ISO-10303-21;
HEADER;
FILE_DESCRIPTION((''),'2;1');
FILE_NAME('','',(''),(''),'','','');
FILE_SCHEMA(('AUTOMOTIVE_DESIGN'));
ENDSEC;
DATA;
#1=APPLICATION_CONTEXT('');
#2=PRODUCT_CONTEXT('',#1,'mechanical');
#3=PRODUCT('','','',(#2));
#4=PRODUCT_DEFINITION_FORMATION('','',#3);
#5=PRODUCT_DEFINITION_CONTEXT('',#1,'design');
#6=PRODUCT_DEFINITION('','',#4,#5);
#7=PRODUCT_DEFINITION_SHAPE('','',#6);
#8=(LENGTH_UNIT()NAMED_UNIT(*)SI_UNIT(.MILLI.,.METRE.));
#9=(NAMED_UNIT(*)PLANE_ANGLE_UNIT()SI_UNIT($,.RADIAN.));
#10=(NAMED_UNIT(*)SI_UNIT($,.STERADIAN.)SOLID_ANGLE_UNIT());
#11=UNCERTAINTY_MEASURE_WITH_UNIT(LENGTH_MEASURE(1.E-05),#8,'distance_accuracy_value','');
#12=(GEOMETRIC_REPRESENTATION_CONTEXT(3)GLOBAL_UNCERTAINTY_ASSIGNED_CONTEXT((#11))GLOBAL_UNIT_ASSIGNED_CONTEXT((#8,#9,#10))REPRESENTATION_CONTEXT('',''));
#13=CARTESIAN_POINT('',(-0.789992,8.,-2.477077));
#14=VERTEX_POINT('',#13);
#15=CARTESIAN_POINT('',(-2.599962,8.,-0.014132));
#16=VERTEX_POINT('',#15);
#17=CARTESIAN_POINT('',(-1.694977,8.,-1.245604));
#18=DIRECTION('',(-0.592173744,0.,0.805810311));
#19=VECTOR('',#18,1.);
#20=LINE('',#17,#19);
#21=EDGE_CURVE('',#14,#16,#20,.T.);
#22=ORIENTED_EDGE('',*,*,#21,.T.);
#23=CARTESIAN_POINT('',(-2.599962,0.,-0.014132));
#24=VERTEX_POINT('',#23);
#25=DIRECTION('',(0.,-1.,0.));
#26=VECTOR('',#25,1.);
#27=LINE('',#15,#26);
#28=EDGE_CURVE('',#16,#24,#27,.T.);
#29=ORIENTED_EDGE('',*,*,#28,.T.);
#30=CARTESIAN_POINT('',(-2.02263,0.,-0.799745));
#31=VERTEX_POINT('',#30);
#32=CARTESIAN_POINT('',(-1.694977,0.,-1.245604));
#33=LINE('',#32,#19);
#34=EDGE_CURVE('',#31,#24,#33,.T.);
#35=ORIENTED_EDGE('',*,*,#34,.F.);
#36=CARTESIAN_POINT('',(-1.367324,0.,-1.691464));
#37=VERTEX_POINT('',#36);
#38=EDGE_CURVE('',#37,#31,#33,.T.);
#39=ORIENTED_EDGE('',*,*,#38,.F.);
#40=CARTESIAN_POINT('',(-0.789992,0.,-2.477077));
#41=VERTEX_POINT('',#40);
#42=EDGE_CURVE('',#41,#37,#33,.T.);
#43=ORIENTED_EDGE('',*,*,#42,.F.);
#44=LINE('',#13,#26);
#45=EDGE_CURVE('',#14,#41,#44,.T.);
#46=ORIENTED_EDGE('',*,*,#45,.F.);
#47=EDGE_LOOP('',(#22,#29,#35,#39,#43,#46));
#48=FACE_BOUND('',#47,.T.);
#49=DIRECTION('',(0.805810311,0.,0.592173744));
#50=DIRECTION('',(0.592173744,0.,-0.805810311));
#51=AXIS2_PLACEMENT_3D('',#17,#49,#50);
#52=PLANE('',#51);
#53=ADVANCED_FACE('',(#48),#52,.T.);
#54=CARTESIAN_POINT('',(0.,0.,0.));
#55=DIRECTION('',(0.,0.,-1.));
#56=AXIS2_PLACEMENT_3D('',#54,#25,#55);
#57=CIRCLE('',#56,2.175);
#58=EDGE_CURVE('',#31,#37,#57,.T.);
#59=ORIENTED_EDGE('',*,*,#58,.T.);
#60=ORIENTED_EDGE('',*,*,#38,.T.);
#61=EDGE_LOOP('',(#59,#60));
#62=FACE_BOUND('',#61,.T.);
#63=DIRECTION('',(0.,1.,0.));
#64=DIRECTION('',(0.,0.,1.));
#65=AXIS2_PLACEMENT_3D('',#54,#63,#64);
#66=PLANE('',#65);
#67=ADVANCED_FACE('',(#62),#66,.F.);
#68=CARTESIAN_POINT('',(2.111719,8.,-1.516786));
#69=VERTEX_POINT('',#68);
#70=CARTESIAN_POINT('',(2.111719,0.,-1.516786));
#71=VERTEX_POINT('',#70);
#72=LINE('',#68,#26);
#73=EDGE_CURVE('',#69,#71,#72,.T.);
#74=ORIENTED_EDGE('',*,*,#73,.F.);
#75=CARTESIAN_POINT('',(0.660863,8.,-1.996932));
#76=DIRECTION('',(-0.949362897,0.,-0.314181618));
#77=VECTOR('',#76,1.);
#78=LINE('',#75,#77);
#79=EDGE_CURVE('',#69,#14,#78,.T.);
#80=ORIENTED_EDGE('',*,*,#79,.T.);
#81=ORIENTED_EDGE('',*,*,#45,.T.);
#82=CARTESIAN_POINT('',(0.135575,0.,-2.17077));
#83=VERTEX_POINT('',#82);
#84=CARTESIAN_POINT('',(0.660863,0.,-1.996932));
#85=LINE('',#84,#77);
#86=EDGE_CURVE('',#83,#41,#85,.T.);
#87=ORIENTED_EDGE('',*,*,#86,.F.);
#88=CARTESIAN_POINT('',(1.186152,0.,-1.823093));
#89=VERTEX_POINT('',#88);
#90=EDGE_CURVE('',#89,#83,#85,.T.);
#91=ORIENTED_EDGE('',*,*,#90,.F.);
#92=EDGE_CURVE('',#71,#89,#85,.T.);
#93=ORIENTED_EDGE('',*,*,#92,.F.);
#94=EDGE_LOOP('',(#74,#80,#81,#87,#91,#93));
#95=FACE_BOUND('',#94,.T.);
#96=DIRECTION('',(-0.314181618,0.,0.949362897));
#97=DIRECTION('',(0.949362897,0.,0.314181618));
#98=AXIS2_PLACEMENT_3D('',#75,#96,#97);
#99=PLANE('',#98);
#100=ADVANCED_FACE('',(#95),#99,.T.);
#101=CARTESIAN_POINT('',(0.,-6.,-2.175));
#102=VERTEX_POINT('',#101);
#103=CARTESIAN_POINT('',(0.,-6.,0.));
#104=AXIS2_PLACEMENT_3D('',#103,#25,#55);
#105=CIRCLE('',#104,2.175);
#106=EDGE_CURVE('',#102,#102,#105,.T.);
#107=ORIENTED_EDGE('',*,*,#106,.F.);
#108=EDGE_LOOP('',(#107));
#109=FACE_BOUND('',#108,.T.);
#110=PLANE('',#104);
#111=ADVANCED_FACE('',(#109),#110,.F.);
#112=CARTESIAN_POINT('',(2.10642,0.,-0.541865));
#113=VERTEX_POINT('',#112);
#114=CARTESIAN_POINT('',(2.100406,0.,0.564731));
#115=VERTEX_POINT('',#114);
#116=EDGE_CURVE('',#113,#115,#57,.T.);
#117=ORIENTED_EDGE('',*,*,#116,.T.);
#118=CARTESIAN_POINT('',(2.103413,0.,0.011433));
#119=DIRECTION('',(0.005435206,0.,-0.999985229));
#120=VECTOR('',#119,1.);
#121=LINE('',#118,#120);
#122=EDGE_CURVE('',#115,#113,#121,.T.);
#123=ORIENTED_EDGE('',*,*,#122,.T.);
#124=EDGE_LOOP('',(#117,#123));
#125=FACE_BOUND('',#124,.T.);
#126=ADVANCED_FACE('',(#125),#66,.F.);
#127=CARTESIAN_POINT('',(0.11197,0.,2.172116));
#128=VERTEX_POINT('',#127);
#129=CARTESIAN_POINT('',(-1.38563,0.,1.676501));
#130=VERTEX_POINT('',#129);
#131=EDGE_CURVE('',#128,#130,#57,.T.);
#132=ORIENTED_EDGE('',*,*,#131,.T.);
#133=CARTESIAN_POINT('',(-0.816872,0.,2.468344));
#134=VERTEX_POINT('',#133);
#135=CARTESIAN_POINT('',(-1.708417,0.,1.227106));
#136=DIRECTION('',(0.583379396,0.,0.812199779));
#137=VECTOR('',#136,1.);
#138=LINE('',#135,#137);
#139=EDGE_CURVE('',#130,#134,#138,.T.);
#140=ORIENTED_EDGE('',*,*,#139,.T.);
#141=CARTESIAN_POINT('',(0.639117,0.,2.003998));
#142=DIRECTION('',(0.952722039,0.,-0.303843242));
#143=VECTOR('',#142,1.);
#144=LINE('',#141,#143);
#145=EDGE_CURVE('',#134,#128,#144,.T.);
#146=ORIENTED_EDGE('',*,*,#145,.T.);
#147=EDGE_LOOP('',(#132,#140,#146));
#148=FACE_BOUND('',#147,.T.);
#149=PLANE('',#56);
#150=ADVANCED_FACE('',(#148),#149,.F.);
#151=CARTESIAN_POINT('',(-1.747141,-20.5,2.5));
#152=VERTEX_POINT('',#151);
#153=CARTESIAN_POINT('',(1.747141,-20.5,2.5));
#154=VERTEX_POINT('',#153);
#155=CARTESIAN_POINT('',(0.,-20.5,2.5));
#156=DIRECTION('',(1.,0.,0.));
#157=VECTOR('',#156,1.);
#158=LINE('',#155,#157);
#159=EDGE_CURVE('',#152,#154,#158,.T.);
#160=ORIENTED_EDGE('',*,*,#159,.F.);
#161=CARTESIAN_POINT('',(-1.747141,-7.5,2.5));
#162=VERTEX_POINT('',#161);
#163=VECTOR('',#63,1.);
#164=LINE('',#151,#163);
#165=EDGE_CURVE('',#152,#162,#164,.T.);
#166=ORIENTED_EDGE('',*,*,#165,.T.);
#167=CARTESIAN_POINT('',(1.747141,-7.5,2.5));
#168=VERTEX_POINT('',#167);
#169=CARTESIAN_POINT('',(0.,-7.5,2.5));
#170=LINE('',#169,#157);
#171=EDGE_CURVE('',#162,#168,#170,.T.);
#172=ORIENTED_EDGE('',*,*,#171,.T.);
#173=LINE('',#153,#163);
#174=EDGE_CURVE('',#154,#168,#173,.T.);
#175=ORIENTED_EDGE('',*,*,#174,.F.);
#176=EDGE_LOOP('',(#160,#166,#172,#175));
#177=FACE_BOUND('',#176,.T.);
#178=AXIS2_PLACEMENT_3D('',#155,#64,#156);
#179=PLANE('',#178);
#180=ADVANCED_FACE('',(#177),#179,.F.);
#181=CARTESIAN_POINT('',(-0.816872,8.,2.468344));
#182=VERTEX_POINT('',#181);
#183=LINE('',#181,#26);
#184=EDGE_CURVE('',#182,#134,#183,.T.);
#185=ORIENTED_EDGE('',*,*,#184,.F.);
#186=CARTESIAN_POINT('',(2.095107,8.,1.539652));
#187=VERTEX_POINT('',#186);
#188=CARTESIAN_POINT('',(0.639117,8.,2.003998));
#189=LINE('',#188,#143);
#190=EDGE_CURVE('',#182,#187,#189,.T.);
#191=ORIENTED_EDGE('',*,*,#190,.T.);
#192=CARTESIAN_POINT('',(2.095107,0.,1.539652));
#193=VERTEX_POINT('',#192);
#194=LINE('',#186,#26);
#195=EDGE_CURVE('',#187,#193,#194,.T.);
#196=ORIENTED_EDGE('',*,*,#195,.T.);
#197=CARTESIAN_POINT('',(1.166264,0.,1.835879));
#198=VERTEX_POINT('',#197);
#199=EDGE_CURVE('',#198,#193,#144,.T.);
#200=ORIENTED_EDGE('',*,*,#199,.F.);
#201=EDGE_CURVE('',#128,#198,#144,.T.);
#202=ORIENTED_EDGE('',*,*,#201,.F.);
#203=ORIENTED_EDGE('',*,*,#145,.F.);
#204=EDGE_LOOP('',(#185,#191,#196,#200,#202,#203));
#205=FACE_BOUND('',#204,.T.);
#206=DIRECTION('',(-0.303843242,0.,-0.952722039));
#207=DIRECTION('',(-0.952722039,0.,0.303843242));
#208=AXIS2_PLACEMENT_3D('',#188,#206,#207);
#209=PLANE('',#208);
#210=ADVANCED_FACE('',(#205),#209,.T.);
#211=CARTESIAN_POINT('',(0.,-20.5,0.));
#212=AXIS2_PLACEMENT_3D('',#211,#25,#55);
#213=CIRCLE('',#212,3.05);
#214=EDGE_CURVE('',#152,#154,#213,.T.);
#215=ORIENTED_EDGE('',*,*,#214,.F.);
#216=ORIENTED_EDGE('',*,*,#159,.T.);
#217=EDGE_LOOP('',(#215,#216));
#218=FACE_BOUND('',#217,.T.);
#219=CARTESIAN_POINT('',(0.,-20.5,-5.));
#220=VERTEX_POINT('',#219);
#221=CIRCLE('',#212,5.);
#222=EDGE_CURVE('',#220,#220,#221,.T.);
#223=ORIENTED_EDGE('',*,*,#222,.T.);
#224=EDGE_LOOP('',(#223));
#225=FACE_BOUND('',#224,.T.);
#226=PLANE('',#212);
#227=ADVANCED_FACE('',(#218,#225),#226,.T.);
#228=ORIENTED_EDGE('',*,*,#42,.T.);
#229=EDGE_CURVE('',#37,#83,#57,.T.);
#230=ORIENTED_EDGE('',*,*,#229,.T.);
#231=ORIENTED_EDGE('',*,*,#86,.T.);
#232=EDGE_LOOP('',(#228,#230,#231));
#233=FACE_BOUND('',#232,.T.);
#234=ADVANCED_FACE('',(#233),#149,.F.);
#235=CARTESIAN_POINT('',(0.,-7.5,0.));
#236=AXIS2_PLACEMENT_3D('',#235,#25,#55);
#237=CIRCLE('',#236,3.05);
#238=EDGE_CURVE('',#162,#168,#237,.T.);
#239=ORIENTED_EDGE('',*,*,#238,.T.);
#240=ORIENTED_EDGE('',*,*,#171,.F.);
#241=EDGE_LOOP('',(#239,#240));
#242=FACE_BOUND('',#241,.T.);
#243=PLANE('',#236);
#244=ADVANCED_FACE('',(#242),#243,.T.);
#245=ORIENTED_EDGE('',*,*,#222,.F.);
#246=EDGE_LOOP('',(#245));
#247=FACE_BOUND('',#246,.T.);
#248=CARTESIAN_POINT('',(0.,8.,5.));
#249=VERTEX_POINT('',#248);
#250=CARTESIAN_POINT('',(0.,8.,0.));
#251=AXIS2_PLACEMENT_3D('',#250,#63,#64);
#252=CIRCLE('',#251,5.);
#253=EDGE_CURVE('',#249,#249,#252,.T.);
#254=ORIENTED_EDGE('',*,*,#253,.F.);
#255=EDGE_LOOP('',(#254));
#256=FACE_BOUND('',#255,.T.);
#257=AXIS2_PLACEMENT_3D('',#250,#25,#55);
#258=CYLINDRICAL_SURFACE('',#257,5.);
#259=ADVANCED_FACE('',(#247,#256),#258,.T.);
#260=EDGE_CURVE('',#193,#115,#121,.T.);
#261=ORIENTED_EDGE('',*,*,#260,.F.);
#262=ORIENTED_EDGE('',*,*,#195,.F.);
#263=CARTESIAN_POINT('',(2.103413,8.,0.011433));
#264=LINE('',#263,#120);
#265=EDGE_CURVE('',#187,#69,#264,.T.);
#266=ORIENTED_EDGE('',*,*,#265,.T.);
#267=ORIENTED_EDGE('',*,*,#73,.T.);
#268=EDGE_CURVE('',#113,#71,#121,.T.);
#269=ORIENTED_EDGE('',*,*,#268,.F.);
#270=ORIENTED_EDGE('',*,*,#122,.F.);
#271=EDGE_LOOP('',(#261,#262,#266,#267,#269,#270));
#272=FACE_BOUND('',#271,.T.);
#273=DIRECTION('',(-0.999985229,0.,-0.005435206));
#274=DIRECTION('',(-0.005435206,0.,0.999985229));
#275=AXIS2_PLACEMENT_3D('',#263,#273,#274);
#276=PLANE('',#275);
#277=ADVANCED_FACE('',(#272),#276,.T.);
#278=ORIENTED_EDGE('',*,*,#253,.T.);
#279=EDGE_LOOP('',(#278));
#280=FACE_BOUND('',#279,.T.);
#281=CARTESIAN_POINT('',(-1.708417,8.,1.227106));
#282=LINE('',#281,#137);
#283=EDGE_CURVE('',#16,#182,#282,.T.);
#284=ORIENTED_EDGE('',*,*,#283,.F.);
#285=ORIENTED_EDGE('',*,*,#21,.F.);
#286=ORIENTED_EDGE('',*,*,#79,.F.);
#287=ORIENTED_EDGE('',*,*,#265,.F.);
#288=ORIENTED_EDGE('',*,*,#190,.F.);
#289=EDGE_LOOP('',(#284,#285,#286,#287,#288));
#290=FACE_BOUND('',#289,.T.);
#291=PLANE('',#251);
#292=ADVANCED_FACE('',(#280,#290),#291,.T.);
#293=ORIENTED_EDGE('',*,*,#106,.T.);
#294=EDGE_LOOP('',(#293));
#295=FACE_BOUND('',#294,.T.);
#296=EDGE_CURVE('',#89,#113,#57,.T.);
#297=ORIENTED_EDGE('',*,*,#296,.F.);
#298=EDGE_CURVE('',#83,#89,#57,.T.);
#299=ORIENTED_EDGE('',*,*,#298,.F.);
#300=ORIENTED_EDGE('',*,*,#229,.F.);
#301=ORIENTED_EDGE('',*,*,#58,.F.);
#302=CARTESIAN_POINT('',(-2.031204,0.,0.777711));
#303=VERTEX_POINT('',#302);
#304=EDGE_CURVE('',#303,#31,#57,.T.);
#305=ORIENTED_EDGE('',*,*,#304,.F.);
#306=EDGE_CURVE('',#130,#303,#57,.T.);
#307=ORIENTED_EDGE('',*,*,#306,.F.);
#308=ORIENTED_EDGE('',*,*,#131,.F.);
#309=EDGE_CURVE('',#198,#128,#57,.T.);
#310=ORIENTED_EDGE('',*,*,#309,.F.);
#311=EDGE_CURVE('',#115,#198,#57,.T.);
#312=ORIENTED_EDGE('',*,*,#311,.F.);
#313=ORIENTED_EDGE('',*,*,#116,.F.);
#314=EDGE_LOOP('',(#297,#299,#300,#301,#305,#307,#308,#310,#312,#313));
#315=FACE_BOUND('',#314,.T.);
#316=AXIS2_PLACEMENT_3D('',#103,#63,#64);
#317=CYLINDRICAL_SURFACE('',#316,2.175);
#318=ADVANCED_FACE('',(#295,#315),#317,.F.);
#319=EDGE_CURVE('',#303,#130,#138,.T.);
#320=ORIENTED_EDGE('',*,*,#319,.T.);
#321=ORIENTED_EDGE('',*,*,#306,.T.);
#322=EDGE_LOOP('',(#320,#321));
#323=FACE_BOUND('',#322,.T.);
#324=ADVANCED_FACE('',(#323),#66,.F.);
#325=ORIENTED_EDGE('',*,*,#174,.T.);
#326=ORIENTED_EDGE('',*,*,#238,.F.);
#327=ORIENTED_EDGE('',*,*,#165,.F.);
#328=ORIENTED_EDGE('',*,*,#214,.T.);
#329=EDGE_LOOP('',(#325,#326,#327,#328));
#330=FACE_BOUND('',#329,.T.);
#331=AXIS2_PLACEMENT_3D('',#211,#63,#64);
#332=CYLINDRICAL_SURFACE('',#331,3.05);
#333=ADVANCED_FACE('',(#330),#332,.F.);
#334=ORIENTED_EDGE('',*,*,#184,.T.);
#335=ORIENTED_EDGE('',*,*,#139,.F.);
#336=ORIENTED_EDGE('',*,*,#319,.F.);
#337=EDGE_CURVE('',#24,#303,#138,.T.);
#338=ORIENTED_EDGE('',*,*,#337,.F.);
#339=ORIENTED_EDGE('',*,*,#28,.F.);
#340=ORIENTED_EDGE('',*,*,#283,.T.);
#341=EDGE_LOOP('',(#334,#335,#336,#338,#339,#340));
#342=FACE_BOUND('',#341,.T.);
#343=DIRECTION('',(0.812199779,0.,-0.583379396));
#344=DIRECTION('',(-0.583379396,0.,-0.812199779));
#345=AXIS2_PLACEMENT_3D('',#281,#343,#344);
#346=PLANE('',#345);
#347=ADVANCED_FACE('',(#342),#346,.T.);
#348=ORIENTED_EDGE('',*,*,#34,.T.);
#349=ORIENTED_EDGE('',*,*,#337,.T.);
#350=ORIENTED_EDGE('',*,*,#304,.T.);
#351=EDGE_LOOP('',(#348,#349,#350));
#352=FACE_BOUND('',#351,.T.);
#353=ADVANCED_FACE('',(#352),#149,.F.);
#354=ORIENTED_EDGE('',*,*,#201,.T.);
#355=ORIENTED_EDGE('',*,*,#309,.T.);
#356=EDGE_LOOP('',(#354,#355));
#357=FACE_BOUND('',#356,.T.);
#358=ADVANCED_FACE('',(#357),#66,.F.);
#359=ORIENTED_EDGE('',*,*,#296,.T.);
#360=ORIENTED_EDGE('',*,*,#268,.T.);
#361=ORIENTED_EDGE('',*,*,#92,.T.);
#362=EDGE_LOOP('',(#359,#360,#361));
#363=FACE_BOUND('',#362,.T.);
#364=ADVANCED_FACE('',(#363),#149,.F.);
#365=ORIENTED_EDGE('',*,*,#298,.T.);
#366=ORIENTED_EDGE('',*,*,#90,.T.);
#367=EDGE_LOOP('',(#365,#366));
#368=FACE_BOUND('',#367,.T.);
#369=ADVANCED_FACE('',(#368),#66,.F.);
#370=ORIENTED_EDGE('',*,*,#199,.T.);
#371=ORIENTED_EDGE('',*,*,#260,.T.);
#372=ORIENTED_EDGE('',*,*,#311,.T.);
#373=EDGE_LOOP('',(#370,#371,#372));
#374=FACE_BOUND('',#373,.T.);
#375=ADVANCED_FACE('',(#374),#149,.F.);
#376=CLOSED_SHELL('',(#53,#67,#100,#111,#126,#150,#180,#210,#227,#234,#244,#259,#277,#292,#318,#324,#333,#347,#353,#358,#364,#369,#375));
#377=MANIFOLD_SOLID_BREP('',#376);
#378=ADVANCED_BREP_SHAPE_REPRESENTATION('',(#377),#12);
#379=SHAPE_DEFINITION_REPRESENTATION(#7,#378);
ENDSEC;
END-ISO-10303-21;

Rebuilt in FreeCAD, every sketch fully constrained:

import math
import FreeCAD as App
import Part
import Sketcher

doc = App.newDocument("Part")
body = doc.addObject("PartDesign::Body", "Body")

sketch1 = body.newObject("Sketcher::SketchObject", "Sketch")
sketch1.AttachmentSupport = (doc.getObject("XZ_Plane"), [""])
sketch1.MapMode = "FlatFace"
sketch1.addGeometry([
    Part.Circle(App.Vector(0, 0, 0), App.Vector(0, 0, 1), 5),
    Part.LineSegment(App.Vector(2.111719, -1.516786, 0), App.Vector(2.095107, 1.539652, 0)),
    Part.LineSegment(App.Vector(2.095107, 1.539652, 0), App.Vector(-0.816872, 2.468344, 0)),
    Part.LineSegment(App.Vector(-0.816872, 2.468344, 0), App.Vector(-2.599962, -0.014132, 0)),
    Part.LineSegment(App.Vector(-2.599962, -0.014132, 0), App.Vector(-0.789992, -2.477077, 0)),
    Part.LineSegment(App.Vector(-0.789992, -2.477077, 0), App.Vector(2.111719, -1.516786, 0)),
], False)
sketch1.addConstraint([
    Sketcher.Constraint("Coincident", 1, 2, 2, 1),
    Sketcher.Constraint("Coincident", 2, 2, 3, 1),
    Sketcher.Constraint("Coincident", 3, 2, 4, 1),
    Sketcher.Constraint("Coincident", 4, 2, 5, 1),
    Sketcher.Constraint("Coincident", 5, 2, 1, 1),
    Sketcher.Constraint("Coincident", 0, 3, -1, 1),
    Sketcher.Constraint("Equal", 1, 2),
    Sketcher.Constraint("Equal", 2, 3),
    Sketcher.Constraint("Equal", 3, 4),
    Sketcher.Constraint("Equal", 4, 5),
    Sketcher.Constraint("Diameter", 0, 10.0),
    Sketcher.Constraint("DistanceX", 4, 2, 1, 2, 2.885099),
    Sketcher.Constraint("DistanceY", -1, 1, 1, 2, 1.539652),
    Sketcher.Constraint("DistanceX", 3, 2, -1, 1, 2.599962),
    Sketcher.Constraint("DistanceY", 3, 2, -1, 1, 0.014132),
    Sketcher.Constraint("DistanceX", -1, 1, 5, 2, 2.111719),
    Sketcher.Constraint("DistanceX", 2, 2, 1, 2, 2.911979),
])
pad1 = body.newObject("PartDesign::Pad", "Pad")
pad1.Profile = sketch1
pad1.Length = 8
pad1.Reversed = True

sketch2 = body.newObject("Sketcher::SketchObject", "Sketch001")
sketch2.AttachmentSupport = (doc.getObject("XZ_Plane"), [""])
sketch2.MapMode = "FlatFace"
sketch2.AttachmentOffset = App.Placement(App.Vector(0, 0, 6), App.Rotation())
sketch2.addGeometry([
    Part.Circle(App.Vector(0, 0, 0), App.Vector(0, 0, 1), 5),
    Part.Circle(App.Vector(0, 0, 0), App.Vector(0, 0, 1), 2.175),
], False)
sketch2.addConstraint([
    Sketcher.Constraint("Coincident", 0, 3, -1, 1),
    Sketcher.Constraint("Coincident", 1, 3, -1, 1),
    Sketcher.Constraint("Diameter", 0, 10.0),
    Sketcher.Constraint("Diameter", 1, 4.35),
])
pad2 = body.newObject("PartDesign::Pad", "Pad001")
pad2.Profile = sketch2
pad2.Length = 6
pad2.Reversed = True

sketch3 = body.newObject("Sketcher::SketchObject", "Sketch002")
sketch3.AttachmentSupport = (doc.getObject("XZ_Plane"), [""])
sketch3.MapMode = "FlatFace"
sketch3.AttachmentOffset = App.Placement(App.Vector(0, 0, 7.5), App.Rotation())
sketch3.addGeometry(Part.Circle(App.Vector(0, 0, 0), App.Vector(0, 0, 1), 5), False)
sketch3.addConstraint([
    Sketcher.Constraint("Coincident", 0, 3, -1, 1),
    Sketcher.Constraint("Diameter", 0, 10.0),
])
pad3 = body.newObject("PartDesign::Pad", "Pad002")
pad3.Profile = sketch3
pad3.Length = 1.5
pad3.Reversed = True

sketch4 = body.newObject("Sketcher::SketchObject", "Sketch003")
sketch4.AttachmentSupport = (doc.getObject("XZ_Plane"), [""])
sketch4.MapMode = "FlatFace"
sketch4.AttachmentOffset = App.Placement(App.Vector(0, 0, 20.5), App.Rotation())
sketch4.addGeometry([
    Part.Circle(App.Vector(0, 0, 0), App.Vector(0, 0, 1), 5),
    Part.ArcOfCircle(Part.Circle(App.Vector(0, 0, 0), App.Vector(0, 0, 1), 3.05), math.radians(124.948014), math.radians(415.051986)),
    Part.LineSegment(App.Vector(-1.747141, 2.5, 0), App.Vector(1.747141, 2.5, 0)),
], False)
sketch4.addConstraint([
    Sketcher.Constraint("Coincident", 1, 1, 2, 1),
    Sketcher.Constraint("Coincident", 2, 2, 1, 2),
    Sketcher.Constraint("Horizontal", 2),
    Sketcher.Constraint("Coincident", 0, 3, -1, 1),
    Sketcher.Constraint("Coincident", 1, 3, -1, 1),
    Sketcher.Constraint("Diameter", 0, 10.0),
    Sketcher.Constraint("Radius", 1, 3.05),
    Sketcher.Constraint("DistanceY", -1, 1, 1, 1, 2.5),
])
pad4 = body.newObject("PartDesign::Pad", "Pad003")
pad4.Profile = sketch4
pad4.Length = 13
pad4.Reversed = True

doc.recompute()
